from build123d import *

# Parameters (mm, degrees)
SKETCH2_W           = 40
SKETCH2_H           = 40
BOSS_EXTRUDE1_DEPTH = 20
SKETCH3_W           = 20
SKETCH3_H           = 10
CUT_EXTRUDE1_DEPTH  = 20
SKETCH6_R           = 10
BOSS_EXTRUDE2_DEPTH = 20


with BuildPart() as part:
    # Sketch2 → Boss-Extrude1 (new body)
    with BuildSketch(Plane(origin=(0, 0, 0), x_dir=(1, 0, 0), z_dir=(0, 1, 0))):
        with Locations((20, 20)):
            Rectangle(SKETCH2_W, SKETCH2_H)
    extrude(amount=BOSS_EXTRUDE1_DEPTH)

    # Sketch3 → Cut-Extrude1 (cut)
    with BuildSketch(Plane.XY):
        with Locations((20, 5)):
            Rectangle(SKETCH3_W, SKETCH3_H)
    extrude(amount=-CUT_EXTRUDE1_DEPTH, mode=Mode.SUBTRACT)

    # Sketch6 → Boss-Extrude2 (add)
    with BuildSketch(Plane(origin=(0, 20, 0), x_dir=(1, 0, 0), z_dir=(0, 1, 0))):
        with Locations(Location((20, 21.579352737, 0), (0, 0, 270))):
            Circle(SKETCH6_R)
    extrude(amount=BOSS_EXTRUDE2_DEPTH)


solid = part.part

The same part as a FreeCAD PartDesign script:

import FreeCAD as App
import Part
import Sketcher

V = App.Vector
Q = App.Units.Quantity

doc = App.newDocument("Part")
body = doc.addObject("PartDesign::Body", "Body")

sketch1 = body.newObject("Sketcher::SketchObject", "Sketch")
sketch1.AttachmentSupport = (doc.getObject("XZ_Plane"), [""])
sketch1.MapMode = "FlatFace"
sketch1.addGeometry([
    Part.LineSegment(V(0, -40, 0), V(0, 0, 0)),
    Part.LineSegment(V(0, 0, 0), V(40, 0, 0)),
    Part.LineSegment(V(40, 0, 0), V(40, -40, 0)),
    Part.LineSegment(V(40, -40, 0), V(0, -40, 0)),
], False)
sketch1.addConstraint([
    Sketcher.Constraint("Coincident", 0, 2, 1, 1),
    Sketcher.Constraint("Coincident", 1, 2, 2, 1),
    Sketcher.Constraint("Coincident", 2, 2, 3, 1),
    Sketcher.Constraint("Coincident", 3, 2, 0, 1),
    Sketcher.Constraint("Vertical", 0),
    Sketcher.Constraint("Horizontal", 1),
    Sketcher.Constraint("Vertical", 2),
    Sketcher.Constraint("Horizontal", 3),
    Sketcher.Constraint("Coincident", 0, 2, -1, 1),
    Sketcher.Constraint("Equal", 3, 0),
    Sketcher.Constraint("DistanceX", 1, 1, 1, 2, Q("40 mm")),
])
pad1 = body.newObject("PartDesign::Pad", "Pad")
pad1.Profile = sketch1
pad1.Length = 20
pad1.Reversed = True

sketch2 = body.newObject("Sketcher::SketchObject", "Sketch001")
sketch2.AttachmentSupport = (doc.getObject("XY_Plane"), [""])
sketch2.MapMode = "FlatFace"
sketch2.addGeometry([
    Part.LineSegment(V(10, 10, 0), V(10, 0, 0)),
    Part.LineSegment(V(10, 0, 0), V(30, 0, 0)),
    Part.LineSegment(V(30, 0, 0), V(30, 10, 0)),
    Part.LineSegment(V(30, 10, 0), V(10, 10, 0)),
], False)
sketch2.addConstraint([
    Sketcher.Constraint("Coincident", 0, 2, 1, 1),
    Sketcher.Constraint("Coincident", 1, 2, 2, 1),
    Sketcher.Constraint("Coincident", 2, 2, 3, 1),
    Sketcher.Constraint("Coincident", 3, 2, 0, 1),
    Sketcher.Constraint("Vertical", 0),
    Sketcher.Constraint("Horizontal", 1),
    Sketcher.Constraint("Vertical", 2),
    Sketcher.Constraint("Horizontal", 3),
    Sketcher.Constraint("PointOnObject", 0, 2, -1),
    Sketcher.Constraint("DistanceX", 1, 1, 1, 2, Q("20 mm")),
    Sketcher.Constraint("DistanceY", 0, 2, 0, 1, Q("10 mm")),
    Sketcher.Constraint("DistanceX", -1, 1, 0, 2, Q("10 mm")),
])
pocket1 = body.newObject("PartDesign::Pocket", "Pocket")
pocket1.Profile = sketch2
pocket1.Length = 20

sketch3 = body.newObject("Sketcher::SketchObject", "Sketch002")
sketch3.AttachmentSupport = (doc.getObject("XZ_Plane"), [""])
sketch3.MapMode = "FlatFace"
sketch3.AttachmentOffset = App.Placement(V(0, 0, -20), App.Rotation())
sketch3.addGeometry(Part.Circle(V(20, -22, 0), V(0, 0, 1), 10), False)
sketch3.addConstraint([
    Sketcher.Constraint("Diameter", 0, Q("20 mm")),
    Sketcher.Constraint("DistanceX", -1, 1, 0, 3, Q("20 mm")),
    Sketcher.Constraint("DistanceY", 0, 3, -1, 1, Q("21.579353 mm")),
])
pad2 = body.newObject("PartDesign::Pad", "Pad001")
pad2.Profile = sketch3
pad2.Length = 20
pad2.Reversed = True

doc.recompute()
